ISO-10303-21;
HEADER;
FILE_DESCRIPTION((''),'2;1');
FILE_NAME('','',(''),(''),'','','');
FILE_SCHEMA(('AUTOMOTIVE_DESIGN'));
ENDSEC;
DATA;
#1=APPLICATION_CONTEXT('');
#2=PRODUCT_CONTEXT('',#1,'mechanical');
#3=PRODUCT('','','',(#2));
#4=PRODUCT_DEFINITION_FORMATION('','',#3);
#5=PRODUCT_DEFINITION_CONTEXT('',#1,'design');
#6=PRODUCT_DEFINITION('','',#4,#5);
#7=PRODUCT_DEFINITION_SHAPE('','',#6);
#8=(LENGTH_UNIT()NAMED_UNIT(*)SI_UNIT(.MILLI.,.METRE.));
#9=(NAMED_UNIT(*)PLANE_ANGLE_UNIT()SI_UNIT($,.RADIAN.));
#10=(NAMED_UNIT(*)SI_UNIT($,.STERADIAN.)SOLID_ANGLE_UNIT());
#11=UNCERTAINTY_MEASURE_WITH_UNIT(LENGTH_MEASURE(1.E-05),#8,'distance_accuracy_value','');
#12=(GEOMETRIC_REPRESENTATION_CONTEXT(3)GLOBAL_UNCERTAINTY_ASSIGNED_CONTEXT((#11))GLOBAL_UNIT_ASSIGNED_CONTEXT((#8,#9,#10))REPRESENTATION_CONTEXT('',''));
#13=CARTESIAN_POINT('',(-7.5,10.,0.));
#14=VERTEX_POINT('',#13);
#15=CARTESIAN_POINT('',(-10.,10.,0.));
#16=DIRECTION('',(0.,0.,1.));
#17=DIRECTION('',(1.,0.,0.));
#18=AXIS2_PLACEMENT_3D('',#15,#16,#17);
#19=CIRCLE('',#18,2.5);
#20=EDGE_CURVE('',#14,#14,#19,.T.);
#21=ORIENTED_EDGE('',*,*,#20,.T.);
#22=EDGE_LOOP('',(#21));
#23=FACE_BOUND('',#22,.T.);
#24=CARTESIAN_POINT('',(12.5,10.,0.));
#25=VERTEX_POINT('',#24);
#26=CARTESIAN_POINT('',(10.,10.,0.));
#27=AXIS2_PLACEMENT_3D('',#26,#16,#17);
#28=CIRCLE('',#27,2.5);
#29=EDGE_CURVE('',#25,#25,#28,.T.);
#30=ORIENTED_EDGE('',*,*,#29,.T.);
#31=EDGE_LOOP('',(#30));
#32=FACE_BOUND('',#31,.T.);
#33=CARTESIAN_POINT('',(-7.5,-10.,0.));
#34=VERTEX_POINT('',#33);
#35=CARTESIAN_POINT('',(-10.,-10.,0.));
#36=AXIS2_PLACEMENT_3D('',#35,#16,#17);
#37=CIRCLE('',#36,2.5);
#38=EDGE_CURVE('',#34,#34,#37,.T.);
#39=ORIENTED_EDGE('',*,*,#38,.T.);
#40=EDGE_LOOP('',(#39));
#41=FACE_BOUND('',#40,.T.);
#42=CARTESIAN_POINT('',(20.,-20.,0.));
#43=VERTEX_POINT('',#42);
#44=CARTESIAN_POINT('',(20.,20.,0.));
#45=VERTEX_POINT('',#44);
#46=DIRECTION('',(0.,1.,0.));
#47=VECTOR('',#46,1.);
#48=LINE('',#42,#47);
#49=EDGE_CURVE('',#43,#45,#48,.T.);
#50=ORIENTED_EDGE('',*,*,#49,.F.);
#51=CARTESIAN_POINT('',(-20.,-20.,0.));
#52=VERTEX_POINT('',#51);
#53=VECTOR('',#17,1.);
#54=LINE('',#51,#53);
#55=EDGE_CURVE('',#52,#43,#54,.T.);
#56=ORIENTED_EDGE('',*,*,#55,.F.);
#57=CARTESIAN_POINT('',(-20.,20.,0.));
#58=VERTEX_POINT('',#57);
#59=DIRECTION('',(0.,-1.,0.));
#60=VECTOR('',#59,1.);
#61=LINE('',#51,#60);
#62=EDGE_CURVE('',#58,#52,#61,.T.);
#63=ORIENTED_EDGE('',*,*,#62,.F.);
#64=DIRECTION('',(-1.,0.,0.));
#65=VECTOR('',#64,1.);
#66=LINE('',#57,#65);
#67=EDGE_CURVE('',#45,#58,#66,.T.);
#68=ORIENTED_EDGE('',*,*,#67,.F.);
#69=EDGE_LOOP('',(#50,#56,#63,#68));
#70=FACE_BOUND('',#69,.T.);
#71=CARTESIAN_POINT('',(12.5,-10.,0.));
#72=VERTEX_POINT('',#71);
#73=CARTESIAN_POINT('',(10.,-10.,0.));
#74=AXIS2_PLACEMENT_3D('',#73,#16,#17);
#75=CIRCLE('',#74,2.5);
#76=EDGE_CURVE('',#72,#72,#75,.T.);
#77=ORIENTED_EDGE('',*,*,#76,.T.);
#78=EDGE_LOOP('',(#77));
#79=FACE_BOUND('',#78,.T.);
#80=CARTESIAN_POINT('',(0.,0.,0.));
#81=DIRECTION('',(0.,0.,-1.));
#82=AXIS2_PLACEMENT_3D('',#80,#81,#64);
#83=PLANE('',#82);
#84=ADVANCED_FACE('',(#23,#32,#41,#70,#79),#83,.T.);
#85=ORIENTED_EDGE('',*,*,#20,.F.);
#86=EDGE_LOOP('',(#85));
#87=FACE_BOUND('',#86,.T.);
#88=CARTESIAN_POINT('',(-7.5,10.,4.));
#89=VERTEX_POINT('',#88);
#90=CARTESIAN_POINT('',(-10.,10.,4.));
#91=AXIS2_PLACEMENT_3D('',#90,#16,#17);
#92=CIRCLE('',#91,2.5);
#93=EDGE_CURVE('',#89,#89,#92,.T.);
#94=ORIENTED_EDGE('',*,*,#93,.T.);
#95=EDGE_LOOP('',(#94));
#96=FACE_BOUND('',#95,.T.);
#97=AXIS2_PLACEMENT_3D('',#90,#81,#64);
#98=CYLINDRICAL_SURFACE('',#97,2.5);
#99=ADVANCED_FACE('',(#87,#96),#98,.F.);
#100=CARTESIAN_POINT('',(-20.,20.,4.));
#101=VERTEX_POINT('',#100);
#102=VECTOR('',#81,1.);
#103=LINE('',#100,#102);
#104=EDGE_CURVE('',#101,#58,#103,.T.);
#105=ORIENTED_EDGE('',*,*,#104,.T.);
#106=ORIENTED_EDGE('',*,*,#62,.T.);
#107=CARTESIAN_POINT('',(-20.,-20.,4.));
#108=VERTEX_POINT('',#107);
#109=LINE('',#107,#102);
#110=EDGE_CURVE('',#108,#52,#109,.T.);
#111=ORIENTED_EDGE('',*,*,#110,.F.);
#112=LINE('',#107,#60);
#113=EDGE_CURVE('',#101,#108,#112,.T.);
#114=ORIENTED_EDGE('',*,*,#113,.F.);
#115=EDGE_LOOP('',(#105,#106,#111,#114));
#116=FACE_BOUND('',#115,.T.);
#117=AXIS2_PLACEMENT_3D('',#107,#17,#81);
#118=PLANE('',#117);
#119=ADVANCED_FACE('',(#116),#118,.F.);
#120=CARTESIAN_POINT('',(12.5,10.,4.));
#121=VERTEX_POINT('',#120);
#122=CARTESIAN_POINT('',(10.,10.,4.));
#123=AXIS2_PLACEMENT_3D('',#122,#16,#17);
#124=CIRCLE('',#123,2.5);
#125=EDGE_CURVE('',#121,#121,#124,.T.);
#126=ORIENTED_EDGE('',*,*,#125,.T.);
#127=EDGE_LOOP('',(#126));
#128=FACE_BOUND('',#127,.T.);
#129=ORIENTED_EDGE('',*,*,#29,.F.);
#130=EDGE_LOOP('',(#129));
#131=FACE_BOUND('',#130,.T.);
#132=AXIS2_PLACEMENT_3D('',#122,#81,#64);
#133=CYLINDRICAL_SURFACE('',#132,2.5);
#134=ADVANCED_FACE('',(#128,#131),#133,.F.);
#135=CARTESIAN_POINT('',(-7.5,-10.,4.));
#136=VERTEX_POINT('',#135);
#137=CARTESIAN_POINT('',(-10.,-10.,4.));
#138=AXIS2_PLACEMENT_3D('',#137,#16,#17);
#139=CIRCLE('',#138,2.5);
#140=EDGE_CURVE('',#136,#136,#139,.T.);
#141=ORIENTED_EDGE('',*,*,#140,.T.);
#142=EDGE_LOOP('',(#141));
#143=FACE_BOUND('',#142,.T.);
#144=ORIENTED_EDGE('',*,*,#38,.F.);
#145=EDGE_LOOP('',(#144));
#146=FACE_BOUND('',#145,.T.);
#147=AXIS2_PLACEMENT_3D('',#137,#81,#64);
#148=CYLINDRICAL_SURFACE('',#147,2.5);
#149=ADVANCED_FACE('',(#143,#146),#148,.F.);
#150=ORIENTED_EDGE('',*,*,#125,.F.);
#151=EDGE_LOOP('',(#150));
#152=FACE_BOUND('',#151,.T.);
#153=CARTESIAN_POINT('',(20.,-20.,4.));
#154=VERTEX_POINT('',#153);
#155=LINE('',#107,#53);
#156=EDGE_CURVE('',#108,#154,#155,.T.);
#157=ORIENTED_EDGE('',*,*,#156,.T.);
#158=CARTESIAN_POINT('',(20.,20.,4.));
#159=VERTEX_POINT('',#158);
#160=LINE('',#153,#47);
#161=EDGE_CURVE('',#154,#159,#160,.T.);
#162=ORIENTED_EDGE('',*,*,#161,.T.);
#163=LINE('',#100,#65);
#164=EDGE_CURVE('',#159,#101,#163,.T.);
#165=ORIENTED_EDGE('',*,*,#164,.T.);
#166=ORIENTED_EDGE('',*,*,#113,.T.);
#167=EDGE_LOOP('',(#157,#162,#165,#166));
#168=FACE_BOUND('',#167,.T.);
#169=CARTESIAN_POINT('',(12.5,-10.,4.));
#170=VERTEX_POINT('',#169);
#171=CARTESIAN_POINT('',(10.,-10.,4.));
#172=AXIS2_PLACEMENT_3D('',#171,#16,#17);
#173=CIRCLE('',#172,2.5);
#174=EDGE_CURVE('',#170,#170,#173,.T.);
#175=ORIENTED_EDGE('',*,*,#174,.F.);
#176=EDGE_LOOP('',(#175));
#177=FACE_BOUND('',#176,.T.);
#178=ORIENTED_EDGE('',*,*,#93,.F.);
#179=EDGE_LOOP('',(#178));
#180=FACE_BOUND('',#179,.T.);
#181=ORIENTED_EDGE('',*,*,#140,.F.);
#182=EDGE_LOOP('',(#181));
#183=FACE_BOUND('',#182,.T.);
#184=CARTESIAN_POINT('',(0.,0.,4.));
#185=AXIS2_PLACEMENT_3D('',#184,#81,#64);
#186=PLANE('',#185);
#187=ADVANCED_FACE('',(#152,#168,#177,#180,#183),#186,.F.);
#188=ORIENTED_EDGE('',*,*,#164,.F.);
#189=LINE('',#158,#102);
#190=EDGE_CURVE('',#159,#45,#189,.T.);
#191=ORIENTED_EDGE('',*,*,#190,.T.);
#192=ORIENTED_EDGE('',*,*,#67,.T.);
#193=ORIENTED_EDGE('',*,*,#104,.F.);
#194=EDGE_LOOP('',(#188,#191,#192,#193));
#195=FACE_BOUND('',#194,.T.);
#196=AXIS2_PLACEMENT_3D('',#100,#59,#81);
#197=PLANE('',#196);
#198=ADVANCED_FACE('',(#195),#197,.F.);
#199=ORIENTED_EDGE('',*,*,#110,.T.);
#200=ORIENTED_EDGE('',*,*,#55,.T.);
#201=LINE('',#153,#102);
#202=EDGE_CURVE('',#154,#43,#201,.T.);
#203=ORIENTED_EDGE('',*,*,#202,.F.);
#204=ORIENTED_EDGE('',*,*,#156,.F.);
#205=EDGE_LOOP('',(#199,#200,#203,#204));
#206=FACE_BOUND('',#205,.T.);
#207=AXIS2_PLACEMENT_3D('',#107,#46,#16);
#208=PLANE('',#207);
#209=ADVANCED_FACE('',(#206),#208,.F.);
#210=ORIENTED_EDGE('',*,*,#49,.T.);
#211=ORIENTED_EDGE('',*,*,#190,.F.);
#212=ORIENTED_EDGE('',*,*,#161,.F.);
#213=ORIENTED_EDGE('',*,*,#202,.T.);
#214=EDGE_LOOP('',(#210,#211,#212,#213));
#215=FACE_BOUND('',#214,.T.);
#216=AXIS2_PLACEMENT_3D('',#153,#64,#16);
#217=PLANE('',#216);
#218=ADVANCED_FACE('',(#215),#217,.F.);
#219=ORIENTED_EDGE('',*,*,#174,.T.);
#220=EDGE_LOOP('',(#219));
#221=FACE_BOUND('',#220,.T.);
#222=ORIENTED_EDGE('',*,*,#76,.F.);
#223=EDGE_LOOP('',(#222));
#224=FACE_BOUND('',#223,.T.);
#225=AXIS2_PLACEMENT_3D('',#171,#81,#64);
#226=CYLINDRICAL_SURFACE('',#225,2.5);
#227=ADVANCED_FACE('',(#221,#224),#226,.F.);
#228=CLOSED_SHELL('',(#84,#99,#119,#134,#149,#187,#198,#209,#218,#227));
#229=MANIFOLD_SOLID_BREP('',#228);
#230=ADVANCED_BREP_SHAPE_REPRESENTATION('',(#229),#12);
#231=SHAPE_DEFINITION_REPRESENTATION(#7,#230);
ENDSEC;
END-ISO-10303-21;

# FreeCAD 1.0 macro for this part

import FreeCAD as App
import Part
import Sketcher

doc = App.newDocument("Part")
body = doc.addObject("PartDesign::Body", "Body")

# Sketch on XY plane
sketch1 = body.newObject("Sketcher::SketchObject", "Sketch")
sketch1.AttachmentSupport = (doc.getObject("XY_Plane"), [""])
sketch1.MapMode = "FlatFace"
sketch1.addGeometry([
    Part.LineSegment(App.Vector(-20, 20, 0), App.Vector(-20, -20, 0)),  # 0
    Part.LineSegment(App.Vector(-20, -20, 0), App.Vector(20, -20, 0)),  # 1
    Part.LineSegment(App.Vector(20, -20, 0), App.Vector(20, 20, 0)),  # 2
    Part.LineSegment(App.Vector(20, 20, 0), App.Vector(-20, 20, 0)),  # 3
    Part.Circle(App.Vector(-10, -10, 0), App.Vector(0, 0, 1), 2.5),  # 4
    Part.Circle(App.Vector(10, -10, 0), App.Vector(0, 0, 1), 2.5),  # 5
    Part.Circle(App.Vector(-10, 10, 0), App.Vector(0, 0, 1), 2.5),  # 6
    Part.Circle(App.Vector(10, 10, 0), App.Vector(0, 0, 1), 2.5),  # 7
], False)
sketch1.addConstraint([
    Sketcher.Constraint("Coincident", 0, 2, 1, 1),
    Sketcher.Constraint("Coincident", 1, 2, 2, 1),
    Sketcher.Constraint("Coincident", 2, 2, 3, 1),
    Sketcher.Constraint("Coincident", 3, 2, 0, 1),
    Sketcher.Constraint("Vertical", 0),
    Sketcher.Constraint("Horizontal", 1),
    Sketcher.Constraint("Vertical", 2),
    Sketcher.Constraint("Horizontal", 3),
    Sketcher.Constraint("Equal", 4, 5),
    Sketcher.Constraint("Equal", 5, 6),
    Sketcher.Constraint("Equal", 6, 7),
    Sketcher.Constraint("Symmetric", 5, 3, 6, 3, -1, 1),
    Sketcher.Constraint("Symmetric", 4, 3, 7, 3, -1, 1),
    Sketcher.Constraint("Symmetric", 0, 2, 2, 2, -1, 1),
    Sketcher.Constraint("Symmetric", 4, 3, 5, 3, -2),
    Sketcher.Constraint("Equal", 3, 0),
    Sketcher.Constraint("Diameter", 4, 5.0),
    Sketcher.Constraint("DistanceX", 1, 1, 1, 2, 40.0),
    Sketcher.Constraint("DistanceX", 4, 3, -1, 1, 10.0),
    Sketcher.Constraint("DistanceY", 4, 3, -1, 1, 10.0),
])
pad1 = body.newObject("PartDesign::Pad", "Pad")
pad1.Profile = sketch1
pad1.Length = 4

doc.recompute()
